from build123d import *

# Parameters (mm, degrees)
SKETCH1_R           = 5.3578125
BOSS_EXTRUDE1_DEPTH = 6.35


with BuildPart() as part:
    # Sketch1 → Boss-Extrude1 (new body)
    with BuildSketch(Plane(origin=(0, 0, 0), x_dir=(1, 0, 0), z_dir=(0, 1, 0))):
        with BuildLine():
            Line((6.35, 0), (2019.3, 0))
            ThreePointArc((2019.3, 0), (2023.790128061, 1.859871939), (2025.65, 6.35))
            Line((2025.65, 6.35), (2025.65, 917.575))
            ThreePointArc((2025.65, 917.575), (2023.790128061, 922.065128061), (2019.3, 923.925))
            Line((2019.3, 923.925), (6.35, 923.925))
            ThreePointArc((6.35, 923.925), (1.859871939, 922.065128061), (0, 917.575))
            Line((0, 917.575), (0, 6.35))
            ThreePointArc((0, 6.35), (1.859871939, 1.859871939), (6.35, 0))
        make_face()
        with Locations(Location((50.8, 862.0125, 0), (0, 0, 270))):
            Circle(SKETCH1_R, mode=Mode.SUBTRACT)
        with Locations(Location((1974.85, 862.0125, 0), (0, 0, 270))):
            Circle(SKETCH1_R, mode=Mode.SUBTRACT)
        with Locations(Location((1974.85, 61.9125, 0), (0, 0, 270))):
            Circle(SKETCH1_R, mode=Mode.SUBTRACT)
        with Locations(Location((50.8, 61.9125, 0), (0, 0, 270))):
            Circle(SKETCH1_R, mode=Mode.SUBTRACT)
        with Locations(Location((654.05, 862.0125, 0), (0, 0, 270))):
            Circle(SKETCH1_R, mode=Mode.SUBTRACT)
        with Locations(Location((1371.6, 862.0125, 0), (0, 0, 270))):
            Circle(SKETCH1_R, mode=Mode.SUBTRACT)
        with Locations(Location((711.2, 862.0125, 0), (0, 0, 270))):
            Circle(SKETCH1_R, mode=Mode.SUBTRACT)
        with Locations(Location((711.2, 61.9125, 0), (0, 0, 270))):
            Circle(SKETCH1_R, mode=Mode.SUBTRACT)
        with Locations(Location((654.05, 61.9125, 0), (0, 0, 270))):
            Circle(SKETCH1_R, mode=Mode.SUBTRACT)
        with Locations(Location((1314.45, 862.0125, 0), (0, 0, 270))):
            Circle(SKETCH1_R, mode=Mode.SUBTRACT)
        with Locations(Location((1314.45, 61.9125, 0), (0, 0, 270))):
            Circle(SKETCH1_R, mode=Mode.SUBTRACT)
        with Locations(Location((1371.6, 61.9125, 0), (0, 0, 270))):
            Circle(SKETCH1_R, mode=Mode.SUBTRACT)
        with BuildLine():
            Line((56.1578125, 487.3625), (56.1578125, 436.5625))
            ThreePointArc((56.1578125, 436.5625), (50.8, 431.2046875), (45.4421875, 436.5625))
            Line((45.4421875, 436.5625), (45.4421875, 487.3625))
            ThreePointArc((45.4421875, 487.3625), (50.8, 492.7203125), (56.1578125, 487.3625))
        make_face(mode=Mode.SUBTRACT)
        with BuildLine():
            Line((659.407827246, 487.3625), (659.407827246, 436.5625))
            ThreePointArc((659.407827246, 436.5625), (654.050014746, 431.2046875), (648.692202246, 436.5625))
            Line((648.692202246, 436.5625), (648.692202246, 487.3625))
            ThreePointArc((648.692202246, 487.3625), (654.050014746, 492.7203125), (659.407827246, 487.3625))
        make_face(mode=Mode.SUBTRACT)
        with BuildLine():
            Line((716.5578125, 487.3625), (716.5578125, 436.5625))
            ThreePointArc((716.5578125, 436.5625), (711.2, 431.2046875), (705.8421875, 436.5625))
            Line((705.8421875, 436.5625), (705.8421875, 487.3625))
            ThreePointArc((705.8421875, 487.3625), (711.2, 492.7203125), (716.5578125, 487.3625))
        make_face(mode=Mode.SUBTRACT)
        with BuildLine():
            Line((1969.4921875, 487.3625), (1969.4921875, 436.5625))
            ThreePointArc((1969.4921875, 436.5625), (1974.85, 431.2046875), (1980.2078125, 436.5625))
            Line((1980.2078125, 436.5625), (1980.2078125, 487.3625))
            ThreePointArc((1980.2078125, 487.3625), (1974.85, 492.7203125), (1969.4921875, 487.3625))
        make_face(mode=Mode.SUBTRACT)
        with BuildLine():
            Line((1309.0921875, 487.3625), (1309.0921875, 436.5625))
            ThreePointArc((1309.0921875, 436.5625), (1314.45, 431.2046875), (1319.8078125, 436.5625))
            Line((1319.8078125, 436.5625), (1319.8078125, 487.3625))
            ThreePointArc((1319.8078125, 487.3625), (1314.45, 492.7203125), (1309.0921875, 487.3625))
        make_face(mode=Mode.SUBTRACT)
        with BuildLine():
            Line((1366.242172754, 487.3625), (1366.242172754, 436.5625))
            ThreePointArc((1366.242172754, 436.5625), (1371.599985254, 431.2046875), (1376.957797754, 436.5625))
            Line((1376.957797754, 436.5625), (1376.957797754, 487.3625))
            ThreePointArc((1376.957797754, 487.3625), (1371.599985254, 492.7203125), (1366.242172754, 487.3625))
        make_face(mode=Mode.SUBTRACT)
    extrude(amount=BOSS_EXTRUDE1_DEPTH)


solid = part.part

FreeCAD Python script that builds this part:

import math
import FreeCAD as App
import Part
import Sketcher
from FreeCAD import Vector
Q = App.Units.Quantity

doc = App.newDocument("Part")
body = doc.addObject("PartDesign::Body", "Body")

# Sketch on XZ plane
sketch1 = body.newObject("Sketcher::SketchObject", "Sketch")
sketch1.AttachmentSupport = (doc.getObject("XZ_Plane"), [""])
sketch1.MapMode = "FlatFace"
sketch1.addGeometry(Part.LineSegment(Vector(6.35, 0, 0), Vector(2019.3, 0, 0)), False)
sketch1.addGeometry(Part.ArcOfCircle(Part.Circle(Vector(2019.3, -6.35, 0), Vector(0, 0, 1), 6.35), math.radians(0), math.radians(90)), False)
sketch1.addGeometry(Part.LineSegment(Vector(2025.65, -6.35, 0), Vector(2025.65, -917.575, 0)), False)
sketch1.addGeometry(Part.ArcOfCircle(Part.Circle(Vector(2019.3, -917.575, 0), Vector(0, 0, 1), 6.35), math.radians(-90), math.radians(0)), False)
sketch1.addGeometry(Part.LineSegment(Vector(2019.3, -923.925, 0), Vector(6.35, -923.925, 0)), False)
sketch1.addGeometry(Part.ArcOfCircle(Part.Circle(Vector(6.35, -917.575, 0), Vector(0, 0, 1), 6.35), math.radians(180), math.radians(270)), False)
sketch1.addGeometry(Part.LineSegment(Vector(0, -917.575, 0), Vector(0, -6.35, 0)), False)
sketch1.addGeometry(Part.ArcOfCircle(Part.Circle(Vector(6.35, -6.35, 0), Vector(0, 0, 1), 6.35), math.radians(90), math.radians(180)), False)
sketch1.addGeometry(Part.Circle(Vector(50.8, -61.9125, 0), Vector(0, 0, 1), 5.357812), False)
sketch1.addGeometry(Part.Circle(Vector(654.05, -61.9125, 0), Vector(0, 0, 1), 5.357812), False)
sketch1.addGeometry(Part.Circle(Vector(711.2, -61.9125, 0), Vector(0, 0, 1), 5.357812), False)
sketch1.addGeometry(Part.ArcOfCircle(Part.Circle(Vector(50.8, -487.3625, 0), Vector(0, 0, 1), 5.357812), math.radians(180), math.radians(360)), False)
sketch1.addGeometry(Part.LineSegment(Vector(56.157812, -487.3625, 0), Vector(56.157812, -436.5625, 0)), False)
sketch1.addGeometry(Part.ArcOfCircle(Part.Circle(Vector(50.8, -436.5625, 0), Vector(0, 0, 1), 5.357812), math.radians(0), math.radians(180)), False)
sketch1.addGeometry(Part.LineSegment(Vector(45.442188, -436.5625, 0), Vector(45.442188, -487.3625, 0)), False)
sketch1.addGeometry(Part.ArcOfCircle(Part.Circle(Vector(654.050015, -487.3625, 0), Vector(0, 0, 1), 5.357812), math.radians(180), math.radians(360)), False)
sketch1.addGeometry(Part.LineSegment(Vector(659.407827, -487.3625, 0), Vector(659.407827, -436.5625, 0)), False)
sketch1.addGeometry(Part.ArcOfCircle(Part.Circle(Vector(654.050015, -436.5625, 0), Vector(0, 0, 1), 5.357812), math.radians(0), math.radians(180)), False)
sketch1.addGeometry(Part.LineSegment(Vector(648.692202, -436.5625, 0), Vector(648.692202, -487.3625, 0)), False)
sketch1.addGeometry(Part.ArcOfCircle(Part.Circle(Vector(711.2, -487.3625, 0), Vector(0, 0, 1), 5.357812), math.radians(180), math.radians(360)), False)
sketch1.addGeometry(Part.LineSegment(Vector(716.557812, -487.3625, 0), Vector(716.557812, -436.5625, 0)), False)
sketch1.addGeometry(Part.ArcOfCircle(Part.Circle(Vector(711.2, -436.5625, 0), Vector(0, 0, 1), 5.357812), math.radians(0), math.radians(180)), False)
sketch1.addGeometry(Part.LineSegment(Vector(705.842188, -436.5625, 0), Vector(705.842188, -487.3625, 0)), False)
sketch1.addGeometry(Part.Circle(Vector(1314.45, -61.9125, 0), Vector(0, 0, 1), 5.357812), False)
sketch1.addGeometry(Part.Circle(Vector(1371.6, -61.9125, 0), Vector(0, 0, 1), 5.357812), False)
sketch1.addGeometry(Part.Circle(Vector(1974.85, -61.9125, 0), Vector(0, 0, 1), 5.357812), False)
sketch1.addGeometry(Part.LineSegment(Vector(1309.092187, -436.5625, 0), Vector(1309.092187, -487.3625, 0)), False)
sketch1.addGeometry(Part.ArcOfCircle(Part.Circle(Vector(1314.45, -487.3625, 0), Vector(0, 0, 1), 5.357812), math.radians(180), math.radians(360)), False)
sketch1.addGeometry(Part.LineSegment(Vector(1319.807812, -487.3625, 0), Vector(1319.807812, -436.5625, 0)), False)
sketch1.addGeometry(Part.ArcOfCircle(Part.Circle(Vector(1314.45, -436.5625, 0), Vector(0, 0, 1), 5.357812), math.radians(0), math.radians(180)), False)
sketch1.addGeometry(Part.LineSegment(Vector(1366.242173, -436.5625, 0), Vector(1366.242173, -487.3625, 0)), False)
sketch1.addGeometry(Part.ArcOfCircle(Part.Circle(Vector(1371.599985, -487.3625, 0), Vector(0, 0, 1), 5.357812), math.radians(180), math.radians(360)), False)
sketch1.addGeometry(Part.LineSegment(Vector(1376.957798, -487.3625, 0), Vector(1376.957798, -436.5625, 0)), False)
sketch1.addGeometry(Part.ArcOfCircle(Part.Circle(Vector(1371.599985, -436.5625, 0), Vector(0, 0, 1), 5.357812), math.radians(0), math.radians(180)), False)
sketch1.addGeometry(Part.LineSegment(Vector(1969.492188, -436.5625, 0), Vector(1969.492188, -487.3625, 0)), False)
sketch1.addGeometry(Part.ArcOfCircle(Part.Circle(Vector(1974.85, -487.3625, 0), Vector(0, 0, 1), 5.357812), math.radians(180), math.radians(360)), False)
sketch1.addGeometry(Part.LineSegment(Vector(1980.207813, -487.3625, 0), Vector(1980.207813, -436.5625, 0)), False)
sketch1.addGeometry(Part.ArcOfCircle(Part.Circle(Vector(1974.85, -436.5625, 0), Vector(0, 0, 1), 5.357812), math.radians(0), math.radians(180)), False)
sketch1.addGeometry(Part.Circle(Vector(50.8, -862.0125, 0), Vector(0, 0, 1), 5.357812), False)
sketch1.addGeometry(Part.Circle(Vector(654.05, -862.0125, 0), Vector(0, 0, 1), 5.357812), False)
sketch1.addGeometry(Part.Circle(Vector(711.2, -862.0125, 0), Vector(0, 0, 1), 5.357812), False)
sketch1.addGeometry(Part.Circle(Vector(1314.45, -862.0125, 0), Vector(0, 0, 1), 5.357812), False)
sketch1.addGeometry(Part.Circle(Vector(1371.6, -862.0125, 0), Vector(0, 0, 1), 5.357812), False)
sketch1.addGeometry(Part.Circle(Vector(1974.85, -862.0125, 0), Vector(0, 0, 1), 5.357812), False)
sketch1.addConstraint(Sketcher.Constraint("Tangent", 0, 2, 1, 2))
sketch1.addConstraint(Sketcher.Constraint("Tangent", 1, 1, 2, 1))
sketch1.addConstraint(Sketcher.Constraint("Tangent", 2, 2, 3, 2))
sketch1.addConstraint(Sketcher.Constraint("Tangent", 3, 1, 4, 1))
sketch1.addConstraint(Sketcher.Constraint("Tangent", 4, 2, 5, 2))
sketch1.addConstraint(Sketcher.Constraint("Tangent", 5, 1, 6, 1))
sketch1.addConstraint(Sketcher.Constraint("Tangent", 6, 2, 7, 2))
sketch1.addConstraint(Sketcher.Constraint("Tangent", 7, 1, 0, 1))
sketch1.addConstraint(Sketcher.Constraint("Tangent", 11, 2, 12, 1))
sketch1.addConstraint(Sketcher.Constraint("Tangent", 12, 2, 13, 1))
sketch1.addConstraint(Sketcher.Constraint("Tangent", 13, 2, 14, 1))
sketch1.addConstraint(Sketcher.Constraint("Tangent", 14, 2, 11, 1))
sketch1.addConstraint(Sketcher.Constraint("Tangent", 15, 2, 16, 1))
sketch1.addConstraint(Sketcher.Constraint("Tangent", 16, 2, 17, 1))
sketch1.addConstraint(Sketcher.Constraint("Tangent", 17, 2, 18, 1))
sketch1.addConstraint(Sketcher.Constraint("Tangent", 18, 2, 15, 1))
sketch1.addConstraint(Sketcher.Constraint("Tangent", 19, 2, 20, 1))
sketch1.addConstraint(Sketcher.Constraint("Tangent", 20, 2, 21, 1))
sketch1.addConstraint(Sketcher.Constraint("Tangent", 21, 2, 22, 1))
sketch1.addConstraint(Sketcher.Constraint("Tangent", 22, 2, 19, 1))
sketch1.addConstraint(Sketcher.Constraint("Tangent", 26, 2, 27, 1))
sketch1.addConstraint(Sketcher.Constraint("Tangent", 27, 2, 28, 1))
sketch1.addConstraint(Sketcher.Constraint("Tangent", 28, 2, 29, 1))
sketch1.addConstraint(Sketcher.Constraint("Tangent", 29, 2, 26, 1))
sketch1.addConstraint(Sketcher.Constraint("Tangent", 30, 2, 31, 1))
sketch1.addConstraint(Sketcher.Constraint("Tangent", 31, 2, 32, 1))
sketch1.addConstraint(Sketcher.Constraint("Tangent", 32, 2, 33, 1))
sketch1.addConstraint(Sketcher.Constraint("Tangent", 33, 2, 30, 1))
sketch1.addConstraint(Sketcher.Constraint("Tangent", 34, 2, 35, 1))
sketch1.addConstraint(Sketcher.Constraint("Tangent", 35, 2, 36, 1))
sketch1.addConstraint(Sketcher.Constraint("Tangent", 36, 2, 37, 1))
sketch1.addConstraint(Sketcher.Constraint("Tangent", 37, 2, 34, 1))
sketch1.addConstraint(Sketcher.Constraint("Horizontal", 0))
sketch1.addConstraint(Sketcher.Constraint("Vertical", 2))
sketch1.addConstraint(Sketcher.Constraint("Horizontal", 4))
sketch1.addConstraint(Sketcher.Constraint("Vertical", 6))
sketch1.addConstraint(Sketcher.Constraint("Vertical", 12))
sketch1.addConstraint(Sketcher.Constraint("Vertical", 14))
sketch1.addConstraint(Sketcher.Constraint("Vertical", 16))
sketch1.addConstraint(Sketcher.Constraint("Vertical", 18))
sketch1.addConstraint(Sketcher.Constraint("Vertical", 20))
sketch1.addConstraint(Sketcher.Constraint("Vertical", 22))
sketch1.addConstraint(Sketcher.Constraint("Vertical", 26))
sketch1.addConstraint(Sketcher.Constraint("Vertical", 28))
sketch1.addConstraint(Sketcher.Constraint("Vertical", 30))
sketch1.addConstraint(Sketcher.Constraint("Vertical", 32))
sketch1.addConstraint(Sketcher.Constraint("Vertical", 34))
sketch1.addConstraint(Sketcher.Constraint("Vertical", 36))
sketch1.addConstraint(Sketcher.Constraint("Equal", 1, 3))
sketch1.addConstraint(Sketcher.Constraint("Equal", 3, 5))
sketch1.addConstraint(Sketcher.Constraint("Equal", 5, 7))
sketch1.addConstraint(Sketcher.Constraint("Equal", 8, 9))
sketch1.addConstraint(Sketcher.Constraint("Equal", 9, 10))
sketch1.addConstraint(Sketcher.Constraint("Equal", 10, 11))
sketch1.addConstraint(Sketcher.Constraint("Equal", 13, 15))
sketch1.addConstraint(Sketcher.Constraint("Equal", 17, 19))
sketch1.addConstraint(Sketcher.Constraint("Equal", 21, 23))
sketch1.addConstraint(Sketcher.Constraint("Equal", 23, 24))
sketch1.addConstraint(Sketcher.Constraint("Equal", 24, 25))
sketch1.addConstraint(Sketcher.Constraint("Equal", 25, 27))
sketch1.addConstraint(Sketcher.Constraint("Equal", 29, 31))
sketch1.addConstraint(Sketcher.Constraint("Equal", 33, 35))
sketch1.addConstraint(Sketcher.Constraint("Equal", 37, 38))
sketch1.addConstraint(Sketcher.Constraint("Equal", 38, 39))
sketch1.addConstraint(Sketcher.Constraint("Equal", 39, 40))
sketch1.addConstraint(Sketcher.Constraint("Equal", 40, 41))
sketch1.addConstraint(Sketcher.Constraint("Equal", 41, 42))
sketch1.addConstraint(Sketcher.Constraint("Equal", 42, 43))
sketch1.addConstraint(Sketcher.Constraint("PointOnObject", 0, 2, -1))
sketch1.addConstraint(Sketcher.Constraint("PointOnObject", 5, 1, -2))
sketch1.addConstraint(Sketcher.Constraint("Horizontal", 8, 3, 9, 3))
sketch1.addConstraint(Sketcher.Constraint("Horizontal", 9, 3, 10, 3))
sketch1.addConstraint(Sketcher.Constraint("Horizontal", 11, 3, 15, 3))
sketch1.addConstraint(Sketcher.Constraint("Horizontal", 13, 3, 17, 3))
sketch1.addConstraint(Sketcher.Constraint("Horizontal", 15, 3, 19, 3))
sketch1.addConstraint(Sketcher.Constraint("Horizontal", 17, 3, 21, 3))
sketch1.addConstraint(Sketcher.Constraint("Horizontal", 10, 3, 23, 3))
sketch1.addConstraint(Sketcher.Constraint("Horizontal", 23, 3, 24, 3))
sketch1.addConstraint(Sketcher.Constraint("Horizontal", 24, 3, 25, 3))
sketch1.addConstraint(Sketcher.Constraint("Horizontal", 19, 3, 27, 3))
sketch1.addConstraint(Sketcher.Constraint("Horizontal", 21, 3, 29, 3))
sketch1.addConstraint(Sketcher.Constraint("Horizontal", 27, 3, 31, 3))
sketch1.addConstraint(Sketcher.Constraint("Horizontal", 29, 3, 33, 3))
sketch1.addConstraint(Sketcher.Constraint("Horizontal", 31, 3, 35, 3))
sketch1.addConstraint(Sketcher.Constraint("Horizontal", 33, 3, 37, 3))
sketch1.addConstraint(Sketcher.Constraint("Horizontal", 38, 3, 39, 3))
sketch1.addConstraint(Sketcher.Constraint("Horizontal", 39, 3, 40, 3))
sketch1.addConstraint(Sketcher.Constraint("Horizontal", 40, 3, 41, 3))
sketch1.addConstraint(Sketcher.Constraint("Horizontal", 41, 3, 42, 3))
sketch1.addConstraint(Sketcher.Constraint("Horizontal", 42, 3, 43, 3))
sketch1.addConstraint(Sketcher.Constraint("Vertical", 8, 3, 11, 3))
sketch1.addConstraint(Sketcher.Constraint("Vertical", 10, 3, 19, 3))
sketch1.addConstraint(Sketcher.Constraint("Vertical", 23, 3, 27, 3))
sketch1.addConstraint(Sketcher.Constraint("Vertical", 25, 3, 35, 3))
sketch1.addConstraint(Sketcher.Constraint("Vertical", 13, 3, 38, 3))
sketch1.addConstraint(Sketcher.Constraint("Vertical", 9, 3, 39, 3))
sketch1.addConstraint(Sketcher.Constraint("Vertical", 21, 3, 40, 3))
sketch1.addConstraint(Sketcher.Constraint("Vertical", 29, 3, 41, 3))
sketch1.addConstraint(Sketcher.Constraint("Vertical", 24, 3, 42, 3))
sketch1.addConstraint(Sketcher.Constraint("Vertical", 37, 3, 43, 3))
sketch1.addConstraint(Sketcher.Constraint("DistanceY", 12, 1, 12, 2, Q("2 in")))
sketch1.addConstraint(Sketcher.Constraint("Radius", 1, Q("0.25 in")))
sketch1.addConstraint(Sketcher.Constraint("Diameter", 8, Q("0.421875 in")))
sketch1.addConstraint(Sketcher.Constraint("DistanceX", -1, 1, 8, 3, Q("2 in")))
sketch1.addConstraint(Sketcher.Constraint("DistanceX", -1, 1, 10, 3, Q("28 in")))
sketch1.addConstraint(Sketcher.Constraint("DistanceX", -1, 1, 24, 3, Q("54 in")))
sketch1.addConstraint(Sketcher.Constraint("DistanceX", 9, 3, 23, 3, Q("26 in")))
sketch1.addConstraint(Sketcher.Constraint("DistanceX", 23, 3, 25, 3, Q("26 in")))
sketch1.addConstraint(Sketcher.Constraint("DistanceX", 25, 3, 1, 1, Q("2 in")))
sketch1.addConstraint(Sketcher.Constraint("DistanceX", 0, 1, 0, 2, Q("79.25 in")))
sketch1.addConstraint(Sketcher.Constraint("DistanceY", 2, 2, 2, 1, Q("35.875 in")))
sketch1.addConstraint(Sketcher.Constraint("DistanceY", 11, 3, 8, 3, Q("16.75 in")))
sketch1.addConstraint(Sketcher.Constraint("DistanceY", 38, 3, 11, 3, Q("14.75 in")))
sketch1.addConstraint(Sketcher.Constraint("DistanceY", 8, 3, -1, 1, Q("2.4375 in")))
sketch1.addConstraint(Sketcher.Constraint("DistanceX", 18, 2, 19, 2, Q("67.86561 mm")))
sketch1.addConstraint(Sketcher.Constraint("DistanceX", 27, 2, 30, 2, Q("46.43436 mm")))
pad1 = body.newObject("PartDesign::Pad", "Pad")
pad1.Profile = sketch1
pad1.Length = Q("0.25 in")
pad1.Reversed = True

doc.recompute()
